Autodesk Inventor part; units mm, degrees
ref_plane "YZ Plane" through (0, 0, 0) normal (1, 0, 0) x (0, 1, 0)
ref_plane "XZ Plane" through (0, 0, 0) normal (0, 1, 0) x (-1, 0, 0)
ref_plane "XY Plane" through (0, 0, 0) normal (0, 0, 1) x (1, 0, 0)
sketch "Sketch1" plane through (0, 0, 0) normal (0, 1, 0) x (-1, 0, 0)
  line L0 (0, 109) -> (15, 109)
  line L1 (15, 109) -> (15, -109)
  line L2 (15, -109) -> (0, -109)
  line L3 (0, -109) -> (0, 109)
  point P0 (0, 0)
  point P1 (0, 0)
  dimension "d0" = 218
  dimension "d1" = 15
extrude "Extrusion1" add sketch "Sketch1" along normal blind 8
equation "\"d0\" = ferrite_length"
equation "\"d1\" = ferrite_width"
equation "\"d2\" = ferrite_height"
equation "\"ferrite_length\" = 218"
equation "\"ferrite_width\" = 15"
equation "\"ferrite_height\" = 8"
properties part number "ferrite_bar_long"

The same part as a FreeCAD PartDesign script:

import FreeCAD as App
import Part
import Sketcher

V = App.Vector
Q = App.Units.Quantity

doc = App.newDocument("Part")
body = doc.addObject("PartDesign::Body", "Body")

# Sketch on XZ plane
sketch1 = body.newObject("Sketcher::SketchObject", "Sketch")
sketch1.AttachmentSupport = (doc.getObject("XZ_Plane"), [""])
sketch1.MapMode = "FlatFace"
sketch1.addGeometry([
    Part.LineSegment(V(-15, 109, 0), V(0, 109, 0)),
    Part.LineSegment(V(0, 109, 0), V(0, -109, 0)),
    Part.LineSegment(V(0, -109, 0), V(-15, -109, 0)),
    Part.LineSegment(V(-15, -109, 0), V(-15, 109, 0)),
], False)
sketch1.addConstraint([
    Sketcher.Constraint("Coincident", 0, 2, 1, 1),
    Sketcher.Constraint("Coincident", 1, 2, 2, 1),
    Sketcher.Constraint("Coincident", 2, 2, 3, 1),
    Sketcher.Constraint("Coincident", 3, 2, 0, 1),
    Sketcher.Constraint("Horizontal", 0),
    Sketcher.Constraint("Vertical", 1),
    Sketcher.Constraint("Horizontal", 2),
    Sketcher.Constraint("Vertical", 3),
    Sketcher.Constraint("Symmetric", 0, 2, 1, 2, -1, 1),
    Sketcher.Constraint("DistanceX", 0, 1, 0, 2, Q("15 mm")),
    Sketcher.Constraint("DistanceY", 1, 2, 1, 1, Q("218 mm")),
])
pad1 = body.newObject("PartDesign::Pad", "Pad")
pad1.Profile = sketch1
pad1.Length = 8
pad1.Reversed = True

doc.recompute()
